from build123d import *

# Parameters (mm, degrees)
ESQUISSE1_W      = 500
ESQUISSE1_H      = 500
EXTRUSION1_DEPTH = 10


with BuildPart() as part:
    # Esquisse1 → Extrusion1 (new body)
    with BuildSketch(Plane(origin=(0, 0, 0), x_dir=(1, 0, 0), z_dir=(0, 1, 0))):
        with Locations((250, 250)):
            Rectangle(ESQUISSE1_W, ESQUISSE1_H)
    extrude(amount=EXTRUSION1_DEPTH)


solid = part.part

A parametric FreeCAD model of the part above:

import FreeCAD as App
import Part
import Sketcher

V = App.Vector
Q = App.Units.Quantity


def add_polygon(sketch, points):
    """Adds a closed chain of lines whose ends are joined by coincident constraints."""
    first, n = sketch.GeometryCount, len(points)
    for a, b in zip(points, points[1:] + points[:1]):
        sketch.addGeometry(Part.LineSegment(App.Vector(*a, 0), App.Vector(*b, 0)), False)
    for i in range(n):
        sketch.addConstraint(Sketcher.Constraint("Coincident", first + i, 2, first + (i + 1) % n, 1))

doc = App.newDocument("Part")
body = doc.addObject("PartDesign::Body", "Body")

sketch1 = doc.addObject("Sketcher::SketchObject", "Sketch")
body.addObject(sketch1)
sketch1.AttachmentSupport = (doc.XZ_Plane, [""])
sketch1.MapMode = "FlatFace"
add_polygon(sketch1, [(0, -500), (0, 0), (500, 0), (500, -500)])
sketch1.addConstraint(Sketcher.Constraint("Vertical", 0))
sketch1.addConstraint(Sketcher.Constraint("Horizontal", 1))
sketch1.addConstraint(Sketcher.Constraint("Vertical", 2))
sketch1.addConstraint(Sketcher.Constraint("Horizontal", 3))
sketch1.addConstraint(Sketcher.Constraint("Coincident", 0, 2, -1, 1))
sketch1.addConstraint(Sketcher.Constraint("Equal", 3, 0))
sketch1.addConstraint(Sketcher.Constraint("DistanceX", 1, 1, 1, 2, Q("500 mm")))
pad1 = doc.addObject("PartDesign::Pad", "Pad")
body.addObject(pad1)
pad1.Profile = sketch1
pad1.Length = 10
pad1.Reversed = True

doc.recompute()
